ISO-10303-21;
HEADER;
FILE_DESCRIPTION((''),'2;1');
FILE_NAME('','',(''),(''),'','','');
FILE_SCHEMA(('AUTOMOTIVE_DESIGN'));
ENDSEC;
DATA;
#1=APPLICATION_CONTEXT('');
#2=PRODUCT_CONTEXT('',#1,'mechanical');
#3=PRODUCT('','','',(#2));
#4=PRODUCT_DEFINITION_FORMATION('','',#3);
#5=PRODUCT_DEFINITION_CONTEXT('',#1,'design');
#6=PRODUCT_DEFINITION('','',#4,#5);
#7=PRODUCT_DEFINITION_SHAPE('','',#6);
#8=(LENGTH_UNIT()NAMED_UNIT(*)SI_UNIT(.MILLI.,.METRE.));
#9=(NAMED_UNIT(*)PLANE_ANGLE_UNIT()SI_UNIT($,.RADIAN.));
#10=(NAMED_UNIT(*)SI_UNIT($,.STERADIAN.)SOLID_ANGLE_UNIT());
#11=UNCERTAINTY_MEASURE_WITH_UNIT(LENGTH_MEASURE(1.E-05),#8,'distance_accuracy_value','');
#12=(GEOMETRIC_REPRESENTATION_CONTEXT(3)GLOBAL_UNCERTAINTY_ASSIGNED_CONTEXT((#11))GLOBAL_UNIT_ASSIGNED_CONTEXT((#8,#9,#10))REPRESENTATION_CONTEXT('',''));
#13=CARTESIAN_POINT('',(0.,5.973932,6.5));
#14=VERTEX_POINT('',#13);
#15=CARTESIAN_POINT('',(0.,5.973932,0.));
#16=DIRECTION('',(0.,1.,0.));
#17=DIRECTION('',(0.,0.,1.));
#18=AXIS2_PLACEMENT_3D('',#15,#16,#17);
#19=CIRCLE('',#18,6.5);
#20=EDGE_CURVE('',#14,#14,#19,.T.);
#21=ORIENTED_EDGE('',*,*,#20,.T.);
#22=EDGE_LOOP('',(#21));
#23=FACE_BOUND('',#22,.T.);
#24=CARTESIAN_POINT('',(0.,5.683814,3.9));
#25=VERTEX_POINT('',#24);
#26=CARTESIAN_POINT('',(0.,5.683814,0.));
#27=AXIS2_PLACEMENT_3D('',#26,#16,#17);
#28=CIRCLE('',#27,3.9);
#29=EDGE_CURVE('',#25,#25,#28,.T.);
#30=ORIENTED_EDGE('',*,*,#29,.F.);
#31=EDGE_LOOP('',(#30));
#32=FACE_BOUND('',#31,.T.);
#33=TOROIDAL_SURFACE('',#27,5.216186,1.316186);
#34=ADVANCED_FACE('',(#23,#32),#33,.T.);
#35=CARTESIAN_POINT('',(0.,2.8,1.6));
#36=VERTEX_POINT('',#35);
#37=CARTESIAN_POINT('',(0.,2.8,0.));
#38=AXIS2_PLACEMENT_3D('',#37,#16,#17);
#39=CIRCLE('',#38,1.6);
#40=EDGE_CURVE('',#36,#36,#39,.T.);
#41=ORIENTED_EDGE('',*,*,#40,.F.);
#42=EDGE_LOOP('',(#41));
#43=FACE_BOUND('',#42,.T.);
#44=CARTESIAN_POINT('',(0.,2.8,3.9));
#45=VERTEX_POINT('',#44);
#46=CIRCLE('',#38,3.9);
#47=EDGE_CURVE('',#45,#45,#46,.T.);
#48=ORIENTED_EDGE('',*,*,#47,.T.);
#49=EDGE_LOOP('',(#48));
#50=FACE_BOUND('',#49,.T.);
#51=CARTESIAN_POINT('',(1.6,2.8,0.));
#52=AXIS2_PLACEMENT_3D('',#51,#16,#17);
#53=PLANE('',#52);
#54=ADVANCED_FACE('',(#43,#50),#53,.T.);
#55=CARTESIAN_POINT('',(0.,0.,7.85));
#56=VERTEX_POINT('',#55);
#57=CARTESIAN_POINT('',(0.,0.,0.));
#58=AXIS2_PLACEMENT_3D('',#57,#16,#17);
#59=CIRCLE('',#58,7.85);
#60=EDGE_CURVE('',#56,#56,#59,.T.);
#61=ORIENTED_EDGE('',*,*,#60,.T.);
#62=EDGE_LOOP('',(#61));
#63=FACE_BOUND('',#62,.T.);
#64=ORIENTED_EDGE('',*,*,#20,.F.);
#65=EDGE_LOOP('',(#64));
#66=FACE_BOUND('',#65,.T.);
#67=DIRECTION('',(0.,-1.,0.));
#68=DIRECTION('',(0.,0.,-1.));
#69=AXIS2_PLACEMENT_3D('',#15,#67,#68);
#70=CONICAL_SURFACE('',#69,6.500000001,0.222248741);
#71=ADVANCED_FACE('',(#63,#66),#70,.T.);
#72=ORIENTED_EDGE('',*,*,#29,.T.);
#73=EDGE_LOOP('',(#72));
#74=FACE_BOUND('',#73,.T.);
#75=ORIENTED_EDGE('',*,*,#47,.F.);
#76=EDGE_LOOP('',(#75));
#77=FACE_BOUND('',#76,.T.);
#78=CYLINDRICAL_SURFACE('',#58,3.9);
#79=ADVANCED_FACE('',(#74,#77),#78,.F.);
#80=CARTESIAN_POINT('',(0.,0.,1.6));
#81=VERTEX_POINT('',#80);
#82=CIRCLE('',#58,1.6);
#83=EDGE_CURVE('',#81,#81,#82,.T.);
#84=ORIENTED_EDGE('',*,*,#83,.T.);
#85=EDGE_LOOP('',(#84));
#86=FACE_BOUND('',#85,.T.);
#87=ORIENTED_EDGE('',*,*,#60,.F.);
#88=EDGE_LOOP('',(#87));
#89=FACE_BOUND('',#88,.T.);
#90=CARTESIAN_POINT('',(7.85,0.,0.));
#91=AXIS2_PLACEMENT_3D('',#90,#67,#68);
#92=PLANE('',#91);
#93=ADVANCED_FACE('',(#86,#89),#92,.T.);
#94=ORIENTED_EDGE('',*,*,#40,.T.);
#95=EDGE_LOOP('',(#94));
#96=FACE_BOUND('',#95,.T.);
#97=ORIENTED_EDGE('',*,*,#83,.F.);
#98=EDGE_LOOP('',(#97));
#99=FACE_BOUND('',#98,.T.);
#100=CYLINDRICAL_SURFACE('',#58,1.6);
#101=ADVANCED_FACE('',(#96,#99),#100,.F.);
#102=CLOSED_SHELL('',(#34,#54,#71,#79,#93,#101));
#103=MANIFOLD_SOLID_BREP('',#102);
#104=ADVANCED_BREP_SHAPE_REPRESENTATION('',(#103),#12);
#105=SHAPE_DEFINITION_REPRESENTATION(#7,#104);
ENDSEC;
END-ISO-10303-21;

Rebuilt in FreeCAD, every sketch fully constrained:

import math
import FreeCAD as App
import Part
import Sketcher

V = App.Vector
Q = App.Units.Quantity

doc = App.newDocument("Part")
body = doc.addObject("PartDesign::Body", "Body")

sketch1 = body.newObject("Sketcher::SketchObject", "Sketch")
sketch1.AttachmentSupport = (doc.getObject("XY_Plane"), [""])
sketch1.MapMode = "FlatFace"
sketch1.addGeometry(Part.LineSegment(V(1.6, 0, 0), V(1.6, 2.8, 0)), False)
sketch1.addGeometry(Part.LineSegment(V(1.6, 2.8, 0), V(3.9, 2.8, 0)), False)
sketch1.addGeometry(Part.LineSegment(V(3.9, 2.8, 0), V(3.9, 5.683814, 0)), False)
sketch1.addGeometry(Part.ArcOfCircle(Part.Circle(V(5.216186, 5.683814, 0), V(0, 0, 1), 1.316186), math.radians(12.733915), math.radians(180)), False)
sketch1.addGeometry(Part.LineSegment(V(6.5, 5.973932, 0), V(7.85, 0, 0)), False)
sketch1.addGeometry(Part.LineSegment(V(7.85, 0, 0), V(1.6, 0, 0)), False)
sketch1.addConstraint(Sketcher.Constraint("Coincident", 0, 2, 1, 1))
sketch1.addConstraint(Sketcher.Constraint("Coincident", 1, 2, 2, 1))
sketch1.addConstraint(Sketcher.Constraint("Coincident", 2, 2, 3, 2))
sketch1.addConstraint(Sketcher.Constraint("Coincident", 3, 1, 4, 1))
sketch1.addConstraint(Sketcher.Constraint("Coincident", 4, 2, 5, 1))
sketch1.addConstraint(Sketcher.Constraint("Coincident", 5, 2, 0, 1))
sketch1.addConstraint(Sketcher.Constraint("Vertical", 0))
sketch1.addConstraint(Sketcher.Constraint("Horizontal", 1))
sketch1.addConstraint(Sketcher.Constraint("Vertical", 2))
sketch1.addConstraint(Sketcher.Constraint("Horizontal", 5))
sketch1.addConstraint(Sketcher.Constraint("PointOnObject", 4, 2, -1))
sketch1.addConstraint(Sketcher.Constraint("DistanceX", 1, 1, 1, 2, Q("2.3 mm")))
sketch1.addConstraint(Sketcher.Constraint("DistanceY", 0, 1, 0, 2, Q("2.8 mm")))
sketch1.addConstraint(Sketcher.Constraint("DistanceX", 5, 2, 5, 1, Q("6.25 mm")))
sketch1.addConstraint(Sketcher.Constraint("DistanceX", -1, 1, 0, 2, Q("1.6 mm")))
sketch1.addConstraint(Sketcher.Constraint("DistanceX", -1, 1, 3, 1, Q("6.5 mm")))
sketch1.addConstraint(Sketcher.Constraint("Radius", 3, Q("1.316186 mm")))
sketch1.addConstraint(Sketcher.Constraint("Distance", 4, Q("6.124571 mm")))
sketch1.addConstraint(Sketcher.Constraint("DistanceY", 2, 1, 2, 2, Q("2.883814 mm")))
revolution = body.newObject("PartDesign::Revolution", "Revolution")
revolution.Profile = sketch1
revolution.ReferenceAxis = (sketch1, ["V_Axis"])
revolution.Angle = 360

doc.recompute()
